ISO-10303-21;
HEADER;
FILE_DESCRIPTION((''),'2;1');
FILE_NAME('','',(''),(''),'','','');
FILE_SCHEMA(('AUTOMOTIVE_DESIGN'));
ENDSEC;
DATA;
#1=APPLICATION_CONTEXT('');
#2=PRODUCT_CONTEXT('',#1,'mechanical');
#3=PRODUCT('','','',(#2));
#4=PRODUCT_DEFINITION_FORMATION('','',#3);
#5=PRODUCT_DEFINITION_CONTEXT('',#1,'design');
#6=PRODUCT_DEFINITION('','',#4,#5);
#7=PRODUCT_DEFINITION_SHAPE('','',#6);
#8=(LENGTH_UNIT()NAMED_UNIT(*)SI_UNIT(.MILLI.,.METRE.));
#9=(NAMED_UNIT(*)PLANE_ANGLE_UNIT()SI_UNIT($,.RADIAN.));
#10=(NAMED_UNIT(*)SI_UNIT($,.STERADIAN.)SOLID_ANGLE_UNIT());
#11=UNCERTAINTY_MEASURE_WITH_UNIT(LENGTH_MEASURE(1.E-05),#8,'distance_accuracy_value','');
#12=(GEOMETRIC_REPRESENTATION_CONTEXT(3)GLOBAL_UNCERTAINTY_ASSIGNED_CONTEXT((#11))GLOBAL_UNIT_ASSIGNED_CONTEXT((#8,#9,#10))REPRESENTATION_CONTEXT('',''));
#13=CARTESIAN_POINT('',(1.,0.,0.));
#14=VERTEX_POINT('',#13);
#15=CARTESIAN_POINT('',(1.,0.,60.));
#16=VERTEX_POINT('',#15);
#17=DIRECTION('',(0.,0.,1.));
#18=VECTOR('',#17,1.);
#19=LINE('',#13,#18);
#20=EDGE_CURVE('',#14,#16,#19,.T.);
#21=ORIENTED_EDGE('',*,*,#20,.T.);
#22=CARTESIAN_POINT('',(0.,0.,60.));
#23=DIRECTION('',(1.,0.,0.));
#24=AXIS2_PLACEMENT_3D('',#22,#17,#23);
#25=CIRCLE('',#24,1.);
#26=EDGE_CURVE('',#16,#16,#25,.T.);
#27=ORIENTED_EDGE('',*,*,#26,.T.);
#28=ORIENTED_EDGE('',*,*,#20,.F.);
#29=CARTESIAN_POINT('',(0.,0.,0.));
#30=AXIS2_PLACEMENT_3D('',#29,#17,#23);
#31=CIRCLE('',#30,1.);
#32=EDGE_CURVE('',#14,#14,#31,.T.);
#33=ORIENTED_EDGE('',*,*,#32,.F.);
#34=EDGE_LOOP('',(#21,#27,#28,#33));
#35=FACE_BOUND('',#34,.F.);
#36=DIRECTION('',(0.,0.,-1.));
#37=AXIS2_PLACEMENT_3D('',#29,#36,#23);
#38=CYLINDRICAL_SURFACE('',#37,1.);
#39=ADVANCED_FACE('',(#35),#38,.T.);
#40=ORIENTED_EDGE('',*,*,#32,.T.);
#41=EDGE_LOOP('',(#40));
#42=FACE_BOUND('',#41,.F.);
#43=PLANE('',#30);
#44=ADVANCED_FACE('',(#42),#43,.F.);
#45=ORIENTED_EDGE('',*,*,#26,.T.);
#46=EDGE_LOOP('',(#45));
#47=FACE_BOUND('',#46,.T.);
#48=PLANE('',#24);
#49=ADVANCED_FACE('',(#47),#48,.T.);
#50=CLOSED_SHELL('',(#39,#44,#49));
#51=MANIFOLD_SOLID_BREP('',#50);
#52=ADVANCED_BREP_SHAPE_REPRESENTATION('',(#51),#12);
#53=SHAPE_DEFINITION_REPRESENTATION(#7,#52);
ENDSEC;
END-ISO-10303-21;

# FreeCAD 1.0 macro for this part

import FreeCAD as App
import Part
import Sketcher

V = App.Vector
Q = App.Units.Quantity

doc = App.newDocument("Part")
body = doc.addObject("PartDesign::Body", "Body")

# Sketch on XY plane
sketch1 = doc.addObject("Sketcher::SketchObject", "Sketch")
body.addObject(sketch1)
sketch1.AttachmentSupport = (doc.XY_Plane, [""])
sketch1.MapMode = "FlatFace"
sketch1.addGeometry(Part.Circle(V(0, 0, 0), V(0, 0, 1), 1), False)
sketch1.addConstraint(Sketcher.Constraint("Coincident", 0, 3, -1, 1))
sketch1.addConstraint(Sketcher.Constraint("Diameter", 0, Q("2 mm")))
pad1 = doc.addObject("PartDesign::Pad", "Pad")
body.addObject(pad1)
pad1.Profile = sketch1
pad1.Length = 60

doc.recompute()
